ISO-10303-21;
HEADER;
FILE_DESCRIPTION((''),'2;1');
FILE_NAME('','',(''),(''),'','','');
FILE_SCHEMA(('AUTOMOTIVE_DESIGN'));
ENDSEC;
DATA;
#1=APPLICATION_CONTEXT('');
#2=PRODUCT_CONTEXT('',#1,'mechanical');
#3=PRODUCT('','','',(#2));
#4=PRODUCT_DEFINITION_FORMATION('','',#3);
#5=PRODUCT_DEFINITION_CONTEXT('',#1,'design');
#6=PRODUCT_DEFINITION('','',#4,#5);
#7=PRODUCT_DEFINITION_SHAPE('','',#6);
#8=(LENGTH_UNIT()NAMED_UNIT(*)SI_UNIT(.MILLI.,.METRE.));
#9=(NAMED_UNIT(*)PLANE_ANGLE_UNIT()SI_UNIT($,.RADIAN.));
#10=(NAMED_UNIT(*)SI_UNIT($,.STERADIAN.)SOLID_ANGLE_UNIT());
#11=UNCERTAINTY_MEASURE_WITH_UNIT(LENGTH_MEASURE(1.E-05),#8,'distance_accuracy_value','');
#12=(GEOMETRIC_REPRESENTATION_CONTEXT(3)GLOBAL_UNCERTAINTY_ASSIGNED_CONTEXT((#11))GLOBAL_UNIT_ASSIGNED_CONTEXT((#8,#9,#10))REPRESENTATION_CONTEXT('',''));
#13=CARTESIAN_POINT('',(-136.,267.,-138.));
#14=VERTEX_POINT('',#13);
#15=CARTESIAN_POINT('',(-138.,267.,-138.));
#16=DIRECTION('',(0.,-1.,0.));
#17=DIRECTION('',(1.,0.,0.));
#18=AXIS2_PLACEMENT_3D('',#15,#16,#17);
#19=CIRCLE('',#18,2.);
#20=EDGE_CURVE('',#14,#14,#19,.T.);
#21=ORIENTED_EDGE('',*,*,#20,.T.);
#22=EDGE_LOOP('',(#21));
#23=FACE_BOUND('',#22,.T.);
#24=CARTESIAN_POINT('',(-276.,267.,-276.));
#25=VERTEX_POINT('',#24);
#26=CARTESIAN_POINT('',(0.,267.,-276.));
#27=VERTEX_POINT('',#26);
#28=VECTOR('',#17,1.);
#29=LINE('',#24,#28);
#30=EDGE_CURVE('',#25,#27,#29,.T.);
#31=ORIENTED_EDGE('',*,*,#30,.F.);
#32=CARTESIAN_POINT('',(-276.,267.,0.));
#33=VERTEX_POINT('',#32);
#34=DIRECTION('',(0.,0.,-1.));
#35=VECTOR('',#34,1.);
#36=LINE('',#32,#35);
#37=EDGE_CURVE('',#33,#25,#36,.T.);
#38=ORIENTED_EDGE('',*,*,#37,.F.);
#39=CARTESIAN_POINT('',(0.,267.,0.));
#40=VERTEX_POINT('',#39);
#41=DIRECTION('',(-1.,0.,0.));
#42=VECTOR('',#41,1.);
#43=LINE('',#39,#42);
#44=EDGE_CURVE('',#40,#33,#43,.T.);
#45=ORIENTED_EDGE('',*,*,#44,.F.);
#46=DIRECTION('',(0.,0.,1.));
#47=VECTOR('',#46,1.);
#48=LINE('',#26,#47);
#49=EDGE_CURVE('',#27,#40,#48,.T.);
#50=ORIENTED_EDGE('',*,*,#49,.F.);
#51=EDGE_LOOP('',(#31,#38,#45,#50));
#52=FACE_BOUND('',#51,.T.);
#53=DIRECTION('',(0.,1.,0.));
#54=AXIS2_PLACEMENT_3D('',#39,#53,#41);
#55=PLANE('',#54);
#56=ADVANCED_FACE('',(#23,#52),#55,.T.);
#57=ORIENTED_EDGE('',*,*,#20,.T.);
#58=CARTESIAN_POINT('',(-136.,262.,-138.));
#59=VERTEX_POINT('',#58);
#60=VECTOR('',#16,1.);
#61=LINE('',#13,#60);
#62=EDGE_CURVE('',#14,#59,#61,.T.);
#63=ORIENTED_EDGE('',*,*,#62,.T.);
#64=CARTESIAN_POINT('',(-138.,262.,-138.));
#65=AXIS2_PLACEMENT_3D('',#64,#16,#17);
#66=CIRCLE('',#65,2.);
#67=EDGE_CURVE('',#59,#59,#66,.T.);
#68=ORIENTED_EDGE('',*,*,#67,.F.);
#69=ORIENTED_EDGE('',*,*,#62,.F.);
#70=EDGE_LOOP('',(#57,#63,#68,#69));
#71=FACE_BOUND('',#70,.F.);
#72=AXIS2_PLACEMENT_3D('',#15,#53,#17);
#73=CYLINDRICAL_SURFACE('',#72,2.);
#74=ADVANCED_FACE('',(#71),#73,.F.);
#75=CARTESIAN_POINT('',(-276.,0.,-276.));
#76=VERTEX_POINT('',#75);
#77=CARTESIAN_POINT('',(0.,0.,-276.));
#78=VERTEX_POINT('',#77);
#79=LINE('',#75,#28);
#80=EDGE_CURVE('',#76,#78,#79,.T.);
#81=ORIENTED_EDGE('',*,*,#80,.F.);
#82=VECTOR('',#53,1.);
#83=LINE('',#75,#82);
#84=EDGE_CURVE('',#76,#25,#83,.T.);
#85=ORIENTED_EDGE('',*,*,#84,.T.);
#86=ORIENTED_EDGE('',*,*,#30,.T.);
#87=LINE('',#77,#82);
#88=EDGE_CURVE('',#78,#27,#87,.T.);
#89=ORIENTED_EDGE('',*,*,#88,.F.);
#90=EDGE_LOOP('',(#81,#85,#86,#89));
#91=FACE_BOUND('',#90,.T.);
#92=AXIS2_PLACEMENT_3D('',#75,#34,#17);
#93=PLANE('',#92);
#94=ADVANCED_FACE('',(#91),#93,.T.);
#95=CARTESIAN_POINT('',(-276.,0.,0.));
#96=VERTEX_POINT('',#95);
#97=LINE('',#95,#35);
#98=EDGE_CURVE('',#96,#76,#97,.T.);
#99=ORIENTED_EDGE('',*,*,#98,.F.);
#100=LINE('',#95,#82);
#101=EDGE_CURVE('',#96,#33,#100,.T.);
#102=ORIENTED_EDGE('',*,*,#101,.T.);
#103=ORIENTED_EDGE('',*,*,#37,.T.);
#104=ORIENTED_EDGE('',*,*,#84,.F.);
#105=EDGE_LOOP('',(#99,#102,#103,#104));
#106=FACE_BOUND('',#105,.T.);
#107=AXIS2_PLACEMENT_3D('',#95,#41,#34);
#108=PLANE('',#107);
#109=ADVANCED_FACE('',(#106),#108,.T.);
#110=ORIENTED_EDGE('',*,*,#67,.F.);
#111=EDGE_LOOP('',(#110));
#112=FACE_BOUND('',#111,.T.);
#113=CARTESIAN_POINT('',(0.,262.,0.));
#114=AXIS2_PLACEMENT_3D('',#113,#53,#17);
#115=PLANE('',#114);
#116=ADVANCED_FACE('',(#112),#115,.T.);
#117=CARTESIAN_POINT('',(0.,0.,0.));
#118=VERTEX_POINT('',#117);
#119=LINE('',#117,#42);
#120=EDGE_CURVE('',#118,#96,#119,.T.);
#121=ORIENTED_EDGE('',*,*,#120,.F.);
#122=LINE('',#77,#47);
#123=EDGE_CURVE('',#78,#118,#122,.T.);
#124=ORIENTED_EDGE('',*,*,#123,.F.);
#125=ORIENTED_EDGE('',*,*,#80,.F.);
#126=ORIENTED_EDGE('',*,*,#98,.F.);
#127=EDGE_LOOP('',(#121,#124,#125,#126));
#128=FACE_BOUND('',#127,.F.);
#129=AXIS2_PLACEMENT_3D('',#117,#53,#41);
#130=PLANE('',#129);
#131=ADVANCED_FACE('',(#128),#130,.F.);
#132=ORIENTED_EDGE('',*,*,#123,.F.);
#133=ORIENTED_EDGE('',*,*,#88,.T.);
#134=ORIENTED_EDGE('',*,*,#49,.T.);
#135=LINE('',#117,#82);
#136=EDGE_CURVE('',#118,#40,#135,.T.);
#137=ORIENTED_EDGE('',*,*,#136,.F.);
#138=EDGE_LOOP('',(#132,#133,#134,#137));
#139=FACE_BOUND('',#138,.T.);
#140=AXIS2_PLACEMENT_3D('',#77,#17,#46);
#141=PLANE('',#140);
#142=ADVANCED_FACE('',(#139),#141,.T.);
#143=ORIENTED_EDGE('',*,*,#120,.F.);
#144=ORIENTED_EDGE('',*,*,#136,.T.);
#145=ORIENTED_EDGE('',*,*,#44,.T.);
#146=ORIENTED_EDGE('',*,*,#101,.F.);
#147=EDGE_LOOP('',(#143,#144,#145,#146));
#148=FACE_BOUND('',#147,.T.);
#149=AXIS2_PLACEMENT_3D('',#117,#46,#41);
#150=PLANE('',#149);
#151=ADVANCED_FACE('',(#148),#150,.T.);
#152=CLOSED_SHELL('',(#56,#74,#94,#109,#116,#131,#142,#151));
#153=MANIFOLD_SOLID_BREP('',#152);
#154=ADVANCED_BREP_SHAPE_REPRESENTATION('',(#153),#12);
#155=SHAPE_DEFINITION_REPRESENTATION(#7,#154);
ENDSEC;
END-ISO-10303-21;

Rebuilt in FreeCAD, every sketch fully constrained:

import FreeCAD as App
import Part
import Sketcher

doc = App.newDocument("Part")
params = doc.addObject("Spreadsheet::Sheet", "Params")
for row, (alias, value) in enumerate([
    ("sketch1_width", "276 mm"),
    ("pad1_length", "267 mm"),
    ("sketch2_diameter", "4 mm"),
    ("pocket1_length", "5 mm"),
], start=1):
    params.set(f"A{row}", alias)
    params.set(f"B{row}", "=" + value)
    params.setAlias(f"B{row}", alias)

body = doc.addObject("PartDesign::Body", "Body")

# Sketch on XZ plane
sketch1 = doc.addObject("Sketcher::SketchObject", "Sketch")
body.addObject(sketch1)
sketch1.AttachmentSupport = (doc.XZ_Plane, [""])
sketch1.MapMode = "FlatFace"
sketch1.addGeometry(Part.LineSegment(App.Vector(-276, 0, 0), App.Vector(0, 0, 0)), False)
sketch1.addGeometry(Part.LineSegment(App.Vector(0, 0, 0), App.Vector(0, -276, 0)), False)
sketch1.addGeometry(Part.LineSegment(App.Vector(0, -276, 0), App.Vector(-276, -276, 0)), False)
sketch1.addGeometry(Part.LineSegment(App.Vector(-276, -276, 0), App.Vector(-276, 0, 0)), False)
sketch1.addConstraint(Sketcher.Constraint("Coincident", 0, 2, 1, 1))
sketch1.addConstraint(Sketcher.Constraint("Coincident", 1, 2, 2, 1))
sketch1.addConstraint(Sketcher.Constraint("Coincident", 2, 2, 3, 1))
sketch1.addConstraint(Sketcher.Constraint("Coincident", 3, 2, 0, 1))
sketch1.addConstraint(Sketcher.Constraint("Horizontal", 0))
sketch1.addConstraint(Sketcher.Constraint("Vertical", 1))
sketch1.addConstraint(Sketcher.Constraint("Horizontal", 2))
sketch1.addConstraint(Sketcher.Constraint("Vertical", 3))
sketch1.addConstraint(Sketcher.Constraint("Coincident", 0, 2, -1, 1))
sketch1.addConstraint(Sketcher.Constraint("Equal", 2, 1))
sketch1.addConstraint(Sketcher.Constraint("DistanceX", 0, 1, 0, 2, 276.0))
sketch1.setExpression("Constraints[10]", "Params.sketch1_width")
pad1 = doc.addObject("PartDesign::Pad", "Pad")
body.addObject(pad1)
pad1.Profile = sketch1
pad1.setExpression("Length", "Params.pad1_length")
pad1.Reversed = True

# Sketch on XZ plane
sketch2 = doc.addObject("Sketcher::SketchObject", "Sketch001")
body.addObject(sketch2)
sketch2.AttachmentSupport = (doc.XZ_Plane, [""])
sketch2.MapMode = "FlatFace"
sketch2.AttachmentOffset = App.Placement(App.Vector(0, 0, -267), App.Rotation())
sketch2.addGeometry(Part.Circle(App.Vector(-138, -138, 0), App.Vector(0, 0, 1), 2), False)
sketch2.addConstraint(Sketcher.Constraint("Diameter", 0, 4.0))
sketch2.addConstraint(Sketcher.Constraint("DistanceX", 0, 3, -1, 1, 138.0))
sketch2.addConstraint(Sketcher.Constraint("DistanceY", 0, 3, -1, 1, 138.0))
sketch2.setExpression("Constraints[0]", "Params.sketch2_diameter")
pocket1 = doc.addObject("PartDesign::Pocket", "Pocket")
body.addObject(pocket1)
pocket1.Profile = sketch2
pocket1.setExpression("Length", "Params.pocket1_length")
pocket1.Reversed = True

doc.recompute()
